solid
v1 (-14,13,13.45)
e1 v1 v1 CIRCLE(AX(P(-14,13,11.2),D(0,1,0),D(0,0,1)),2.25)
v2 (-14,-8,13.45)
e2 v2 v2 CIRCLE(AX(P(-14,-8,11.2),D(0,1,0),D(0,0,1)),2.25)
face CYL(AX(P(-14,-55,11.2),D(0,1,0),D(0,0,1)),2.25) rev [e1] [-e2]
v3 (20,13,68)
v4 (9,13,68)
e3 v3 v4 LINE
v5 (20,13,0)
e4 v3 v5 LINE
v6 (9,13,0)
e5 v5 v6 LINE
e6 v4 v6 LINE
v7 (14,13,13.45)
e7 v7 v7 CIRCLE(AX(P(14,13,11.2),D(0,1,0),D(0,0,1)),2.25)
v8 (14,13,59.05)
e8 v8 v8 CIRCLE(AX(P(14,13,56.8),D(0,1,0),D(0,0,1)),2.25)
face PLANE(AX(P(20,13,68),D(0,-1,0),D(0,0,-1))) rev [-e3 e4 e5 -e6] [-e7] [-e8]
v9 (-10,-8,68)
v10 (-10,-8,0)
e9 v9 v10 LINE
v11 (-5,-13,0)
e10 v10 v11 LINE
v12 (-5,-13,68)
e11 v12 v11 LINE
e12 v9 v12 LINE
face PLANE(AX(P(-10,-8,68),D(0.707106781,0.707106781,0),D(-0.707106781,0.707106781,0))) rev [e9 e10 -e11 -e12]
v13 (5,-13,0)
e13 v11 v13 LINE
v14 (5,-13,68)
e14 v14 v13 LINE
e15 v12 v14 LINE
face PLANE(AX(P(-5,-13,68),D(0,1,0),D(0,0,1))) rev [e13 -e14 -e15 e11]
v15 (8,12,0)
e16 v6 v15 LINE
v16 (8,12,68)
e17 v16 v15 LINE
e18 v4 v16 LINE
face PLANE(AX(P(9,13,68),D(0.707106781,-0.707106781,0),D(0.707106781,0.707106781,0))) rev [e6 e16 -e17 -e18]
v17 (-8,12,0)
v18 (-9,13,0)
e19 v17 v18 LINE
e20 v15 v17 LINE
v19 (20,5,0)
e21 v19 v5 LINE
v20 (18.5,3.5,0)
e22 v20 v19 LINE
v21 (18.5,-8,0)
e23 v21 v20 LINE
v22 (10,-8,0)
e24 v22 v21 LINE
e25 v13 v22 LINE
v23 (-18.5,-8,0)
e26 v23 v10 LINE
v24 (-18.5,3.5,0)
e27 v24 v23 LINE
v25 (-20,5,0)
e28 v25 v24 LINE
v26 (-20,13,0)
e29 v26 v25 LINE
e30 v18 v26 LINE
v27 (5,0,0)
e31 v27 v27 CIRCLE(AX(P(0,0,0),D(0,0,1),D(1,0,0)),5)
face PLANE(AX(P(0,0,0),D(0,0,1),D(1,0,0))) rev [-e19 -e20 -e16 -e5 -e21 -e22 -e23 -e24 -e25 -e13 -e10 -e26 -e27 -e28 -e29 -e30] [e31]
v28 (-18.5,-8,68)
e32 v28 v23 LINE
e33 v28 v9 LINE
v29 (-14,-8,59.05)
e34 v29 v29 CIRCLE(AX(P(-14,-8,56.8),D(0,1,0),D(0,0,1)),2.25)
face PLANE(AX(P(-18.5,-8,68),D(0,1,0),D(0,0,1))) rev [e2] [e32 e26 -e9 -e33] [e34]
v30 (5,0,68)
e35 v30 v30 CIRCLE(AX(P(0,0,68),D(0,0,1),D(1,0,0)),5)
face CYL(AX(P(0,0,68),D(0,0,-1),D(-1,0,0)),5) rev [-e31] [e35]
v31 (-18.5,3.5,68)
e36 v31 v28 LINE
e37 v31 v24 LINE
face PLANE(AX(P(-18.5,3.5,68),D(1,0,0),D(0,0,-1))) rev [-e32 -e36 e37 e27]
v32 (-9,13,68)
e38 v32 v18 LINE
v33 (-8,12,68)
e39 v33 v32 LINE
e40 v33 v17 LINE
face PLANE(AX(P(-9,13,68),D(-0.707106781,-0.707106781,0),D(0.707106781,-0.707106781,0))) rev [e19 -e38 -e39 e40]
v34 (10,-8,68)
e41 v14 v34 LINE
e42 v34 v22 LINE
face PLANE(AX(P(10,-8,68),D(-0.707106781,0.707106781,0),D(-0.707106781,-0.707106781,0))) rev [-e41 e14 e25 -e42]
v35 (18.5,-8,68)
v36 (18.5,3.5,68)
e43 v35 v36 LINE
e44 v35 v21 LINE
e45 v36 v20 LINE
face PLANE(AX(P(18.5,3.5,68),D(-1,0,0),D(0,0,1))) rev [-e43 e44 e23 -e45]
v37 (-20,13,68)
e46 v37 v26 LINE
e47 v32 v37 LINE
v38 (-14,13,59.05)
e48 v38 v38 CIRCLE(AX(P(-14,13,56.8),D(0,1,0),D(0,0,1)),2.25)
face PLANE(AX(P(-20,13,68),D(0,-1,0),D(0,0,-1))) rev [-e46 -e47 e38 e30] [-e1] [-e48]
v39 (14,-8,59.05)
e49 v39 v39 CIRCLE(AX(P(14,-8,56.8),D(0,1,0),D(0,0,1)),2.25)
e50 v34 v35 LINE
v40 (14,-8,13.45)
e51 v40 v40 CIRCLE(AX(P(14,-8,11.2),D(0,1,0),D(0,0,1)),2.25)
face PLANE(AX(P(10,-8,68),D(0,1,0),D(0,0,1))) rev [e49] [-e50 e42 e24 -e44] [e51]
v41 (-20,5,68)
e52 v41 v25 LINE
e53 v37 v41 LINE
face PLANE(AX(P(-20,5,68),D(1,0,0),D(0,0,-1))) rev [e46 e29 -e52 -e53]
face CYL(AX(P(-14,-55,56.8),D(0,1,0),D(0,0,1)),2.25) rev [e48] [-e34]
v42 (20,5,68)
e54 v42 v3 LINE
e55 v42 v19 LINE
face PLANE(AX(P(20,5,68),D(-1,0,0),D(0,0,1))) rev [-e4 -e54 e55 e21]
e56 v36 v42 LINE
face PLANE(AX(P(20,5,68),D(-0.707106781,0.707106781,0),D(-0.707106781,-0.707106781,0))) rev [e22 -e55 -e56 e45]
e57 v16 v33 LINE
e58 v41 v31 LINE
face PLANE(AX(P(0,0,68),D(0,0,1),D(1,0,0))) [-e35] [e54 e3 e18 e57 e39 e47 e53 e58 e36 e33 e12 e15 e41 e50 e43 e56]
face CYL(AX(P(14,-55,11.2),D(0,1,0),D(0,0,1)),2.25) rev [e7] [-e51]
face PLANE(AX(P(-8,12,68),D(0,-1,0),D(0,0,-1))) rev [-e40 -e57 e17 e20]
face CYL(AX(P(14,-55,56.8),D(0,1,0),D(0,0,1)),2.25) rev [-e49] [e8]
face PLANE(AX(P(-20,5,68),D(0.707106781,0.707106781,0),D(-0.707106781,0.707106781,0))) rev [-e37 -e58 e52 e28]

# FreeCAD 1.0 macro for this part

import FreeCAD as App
import Part
import Sketcher

V = App.Vector


def add_polygon(sketch, points):
    """Adds a closed chain of lines whose ends are joined by coincident constraints."""
    first, n = sketch.GeometryCount, len(points)
    for a, b in zip(points, points[1:] + points[:1]):
        sketch.addGeometry(Part.LineSegment(App.Vector(*a, 0), App.Vector(*b, 0)), False)
    for i in range(n):
        sketch.addConstraint(Sketcher.Constraint("Coincident", first + i, 2, first + (i + 1) % n, 1))

doc = App.newDocument("Part")
params = doc.addObject("Spreadsheet::Sheet", "Params")
for row, (alias, value) in enumerate([
    ("sketch1_diameter", "10 mm"),
    ("sketch1_width", "10 mm"),
    ("sketch1_width2", "11 mm"),
    ("sketch1_width3", "16 mm"),
    ("sketch1_height", "8 mm"),
    ("pad1_length", "68 mm"),
    ("sketch2_diameter", "4.5 mm"),
    ("pocket1_length", "68 mm"),
], start=1):
    params.set(f"A{row}", alias)
    params.set(f"B{row}", "=" + value)
    params.setAlias(f"B{row}", alias)

body = doc.addObject("PartDesign::Body", "Body")

sketch1 = doc.addObject("Sketcher::SketchObject", "Sketch")
body.addObject(sketch1)
sketch1.AttachmentSupport = (doc.XY_Plane, [""])
sketch1.MapMode = "FlatFace"
add_polygon(sketch1, [(-18.5, -8), (-10, -8), (-5, -13), (5, -13), (10, -8), (18.5, -8), (18.5, 3.5), (20, 5), (20, 13), (9, 13), (8, 12), (-8, 12), (-9, 13), (-20, 13), (-20, 5), (-18.5, 3.5)])
sketch1.addGeometry(Part.Circle(V(0, 0, 0), V(0, 0, 1), 5), False)
sketch1.addConstraint(Sketcher.Constraint("Horizontal", 0))
sketch1.addConstraint(Sketcher.Constraint("Horizontal", 2))
sketch1.addConstraint(Sketcher.Constraint("Horizontal", 4))
sketch1.addConstraint(Sketcher.Constraint("Vertical", 5))
sketch1.addConstraint(Sketcher.Constraint("Vertical", 7))
sketch1.addConstraint(Sketcher.Constraint("Horizontal", 8))
sketch1.addConstraint(Sketcher.Constraint("Horizontal", 10))
sketch1.addConstraint(Sketcher.Constraint("Horizontal", 12))
sketch1.addConstraint(Sketcher.Constraint("Vertical", 13))
sketch1.addConstraint(Sketcher.Constraint("Vertical", 15))
sketch1.addConstraint(Sketcher.Constraint("Coincident", 16, 3, -1, 1))
sketch1.addConstraint(Sketcher.Constraint("Symmetric", 0, 2, 3, 2, -2))
sketch1.addConstraint(Sketcher.Constraint("Symmetric", 8, 2, 11, 2, -2))
sketch1.addConstraint(Sketcher.Constraint("Symmetric", 6, 2, 13, 2, -2))
sketch1.addConstraint(Sketcher.Constraint("Symmetric", 5, 2, 14, 2, -2))
sketch1.addConstraint(Sketcher.Constraint("Perpendicular", 1, 3))
sketch1.addConstraint(Sketcher.Constraint("Parallel", 3, 6))
sketch1.addConstraint(Sketcher.Constraint("Parallel", 6, 9))
sketch1.addConstraint(Sketcher.Constraint("Perpendicular", 9, 11))
sketch1.addConstraint(Sketcher.Constraint("Parallel", 11, 14))
sketch1.addConstraint(Sketcher.Constraint("Diameter", 16, 10.0))
sketch1.addConstraint(Sketcher.Constraint("DistanceX", 2, 1, 2, 2, 10.0))
sketch1.addConstraint(Sketcher.Constraint("DistanceX", 8, 2, 8, 1, 11.0))
sketch1.addConstraint(Sketcher.Constraint("DistanceX", 10, 2, 10, 1, 16.0))
sketch1.addConstraint(Sketcher.Constraint("DistanceY", 7, 1, 7, 2, 8.0))
sketch1.addConstraint(Sketcher.Constraint("DistanceX", 0, 1, 0, 2, 8.5))
sketch1.addConstraint(Sketcher.Constraint("DistanceY", 5, 1, 5, 2, 11.5))
sketch1.addConstraint(Sketcher.Constraint("DistanceX", 0, 2, -1, 1, 10.0))
sketch1.addConstraint(Sketcher.Constraint("DistanceY", 0, 2, -1, 1, 8.0))
sketch1.addConstraint(Sketcher.Constraint("DistanceX", -1, 1, 6, 2, 20.0))
sketch1.setExpression("Constraints[36]", "Params.sketch1_diameter")
sketch1.setExpression("Constraints[37]", "Params.sketch1_width")
sketch1.setExpression("Constraints[38]", "Params.sketch1_width2")
sketch1.setExpression("Constraints[39]", "Params.sketch1_width3")
sketch1.setExpression("Constraints[40]", "Params.sketch1_height")
pad1 = doc.addObject("PartDesign::Pad", "Pad")
body.addObject(pad1)
pad1.Profile = sketch1
pad1.setExpression("Length", "Params.pad1_length")

sketch2 = doc.addObject("Sketcher::SketchObject", "Sketch001")
body.addObject(sketch2)
sketch2.AttachmentSupport = (doc.XZ_Plane, [""])
sketch2.MapMode = "FlatFace"
sketch2.AttachmentOffset = App.Placement(V(0, 0, -13), App.Rotation())
sketch2.addGeometry(Part.Circle(V(-14, 11.2, 0), V(0, 0, 1), 2.25), False)
sketch2.addGeometry(Part.Circle(V(14, 11.2, 0), V(0, 0, 1), 2.25), False)
sketch2.addGeometry(Part.Circle(V(14, 56.8, 0), V(0, 0, 1), 2.25), False)
sketch2.addGeometry(Part.Circle(V(-14, 56.8, 0), V(0, 0, 1), 2.25), False)
sketch2.addConstraint(Sketcher.Constraint("Equal", 0, 1))
sketch2.addConstraint(Sketcher.Constraint("Equal", 1, 2))
sketch2.addConstraint(Sketcher.Constraint("Equal", 2, 3))
sketch2.addConstraint(Sketcher.Constraint("Symmetric", 0, 3, 1, 3, -2))
sketch2.addConstraint(Sketcher.Constraint("Symmetric", 2, 3, 3, 3, -2))
sketch2.addConstraint(Sketcher.Constraint("Vertical", 1, 3, 2, 3))
sketch2.addConstraint(Sketcher.Constraint("Diameter", 0, 4.5))
sketch2.addConstraint(Sketcher.Constraint("DistanceX", 0, 3, -1, 1, 14.0))
sketch2.addConstraint(Sketcher.Constraint("DistanceY", -1, 1, 0, 3, 11.2))
sketch2.addConstraint(Sketcher.Constraint("DistanceY", -1, 1, 2, 3, 56.8))
sketch2.setExpression("Constraints[6]", "Params.sketch2_diameter")
pocket1 = doc.addObject("PartDesign::Pocket", "Pocket")
body.addObject(pocket1)
pocket1.Profile = sketch2
pocket1.setExpression("Length", "Params.pocket1_length")
pocket1.Reversed = True

doc.recompute()
